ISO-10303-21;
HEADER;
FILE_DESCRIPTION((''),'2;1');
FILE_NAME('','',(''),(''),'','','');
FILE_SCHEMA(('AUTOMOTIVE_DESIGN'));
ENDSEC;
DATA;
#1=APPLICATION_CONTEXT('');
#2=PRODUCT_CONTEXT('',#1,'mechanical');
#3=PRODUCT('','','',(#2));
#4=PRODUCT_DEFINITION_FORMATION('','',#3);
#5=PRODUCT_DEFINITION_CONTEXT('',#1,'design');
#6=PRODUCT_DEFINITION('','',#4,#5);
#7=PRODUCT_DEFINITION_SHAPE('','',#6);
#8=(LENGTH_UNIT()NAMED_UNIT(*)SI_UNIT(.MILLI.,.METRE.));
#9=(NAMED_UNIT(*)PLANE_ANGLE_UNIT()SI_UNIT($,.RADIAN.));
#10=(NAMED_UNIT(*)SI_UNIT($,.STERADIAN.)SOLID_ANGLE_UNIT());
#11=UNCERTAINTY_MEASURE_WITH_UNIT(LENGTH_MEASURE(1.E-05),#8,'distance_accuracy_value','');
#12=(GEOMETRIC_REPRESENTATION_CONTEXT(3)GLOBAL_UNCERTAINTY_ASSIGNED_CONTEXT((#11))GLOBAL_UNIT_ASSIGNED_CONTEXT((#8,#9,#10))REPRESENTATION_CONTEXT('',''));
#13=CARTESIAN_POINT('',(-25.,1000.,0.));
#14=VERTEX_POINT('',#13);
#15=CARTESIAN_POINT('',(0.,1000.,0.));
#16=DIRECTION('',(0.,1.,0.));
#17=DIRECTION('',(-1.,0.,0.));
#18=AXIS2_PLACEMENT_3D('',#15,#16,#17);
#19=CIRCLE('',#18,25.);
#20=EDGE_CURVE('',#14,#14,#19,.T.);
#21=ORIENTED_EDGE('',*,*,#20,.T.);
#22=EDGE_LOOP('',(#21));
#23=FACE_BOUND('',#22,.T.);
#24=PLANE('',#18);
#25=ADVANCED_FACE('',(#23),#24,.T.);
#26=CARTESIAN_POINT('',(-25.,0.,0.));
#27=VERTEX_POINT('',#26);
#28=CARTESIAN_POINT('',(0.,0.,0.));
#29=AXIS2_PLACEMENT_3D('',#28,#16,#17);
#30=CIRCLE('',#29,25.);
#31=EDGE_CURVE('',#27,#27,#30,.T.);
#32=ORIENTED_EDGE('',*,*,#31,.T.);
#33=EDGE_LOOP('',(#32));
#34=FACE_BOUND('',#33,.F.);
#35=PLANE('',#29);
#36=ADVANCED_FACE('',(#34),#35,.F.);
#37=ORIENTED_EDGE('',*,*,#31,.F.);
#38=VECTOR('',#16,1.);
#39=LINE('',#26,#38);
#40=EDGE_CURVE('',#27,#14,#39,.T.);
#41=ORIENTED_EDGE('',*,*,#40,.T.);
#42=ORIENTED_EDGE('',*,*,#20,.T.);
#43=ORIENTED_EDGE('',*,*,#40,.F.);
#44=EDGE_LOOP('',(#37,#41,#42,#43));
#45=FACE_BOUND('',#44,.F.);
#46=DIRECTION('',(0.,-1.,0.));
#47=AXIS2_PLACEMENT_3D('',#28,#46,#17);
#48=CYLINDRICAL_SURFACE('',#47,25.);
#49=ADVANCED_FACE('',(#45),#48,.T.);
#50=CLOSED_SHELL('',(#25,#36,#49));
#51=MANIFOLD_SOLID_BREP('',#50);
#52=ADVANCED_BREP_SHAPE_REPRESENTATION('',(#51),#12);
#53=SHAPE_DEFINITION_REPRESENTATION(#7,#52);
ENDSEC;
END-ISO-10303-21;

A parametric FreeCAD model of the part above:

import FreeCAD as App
import Part
import Sketcher
from FreeCAD import Vector

doc = App.newDocument("Part")
body = doc.addObject("PartDesign::Body", "Body")

# Sketch on XZ plane
sketch1 = body.newObject("Sketcher::SketchObject", "Sketch")
sketch1.AttachmentSupport = (doc.getObject("XZ_Plane"), [""])
sketch1.MapMode = "FlatFace"
sketch1.addGeometry(Part.Circle(Vector(0, 0, 0), Vector(0, 0, 1), 25), False)
sketch1.addConstraint([
    Sketcher.Constraint("Coincident", 0, 3, -1, 1),
    Sketcher.Constraint("Diameter", 0, 50.0),
])
pad1 = body.newObject("PartDesign::Pad", "Pad")
pad1.Profile = sketch1
pad1.Length = 1000
pad1.Reversed = True

doc.recompute()
